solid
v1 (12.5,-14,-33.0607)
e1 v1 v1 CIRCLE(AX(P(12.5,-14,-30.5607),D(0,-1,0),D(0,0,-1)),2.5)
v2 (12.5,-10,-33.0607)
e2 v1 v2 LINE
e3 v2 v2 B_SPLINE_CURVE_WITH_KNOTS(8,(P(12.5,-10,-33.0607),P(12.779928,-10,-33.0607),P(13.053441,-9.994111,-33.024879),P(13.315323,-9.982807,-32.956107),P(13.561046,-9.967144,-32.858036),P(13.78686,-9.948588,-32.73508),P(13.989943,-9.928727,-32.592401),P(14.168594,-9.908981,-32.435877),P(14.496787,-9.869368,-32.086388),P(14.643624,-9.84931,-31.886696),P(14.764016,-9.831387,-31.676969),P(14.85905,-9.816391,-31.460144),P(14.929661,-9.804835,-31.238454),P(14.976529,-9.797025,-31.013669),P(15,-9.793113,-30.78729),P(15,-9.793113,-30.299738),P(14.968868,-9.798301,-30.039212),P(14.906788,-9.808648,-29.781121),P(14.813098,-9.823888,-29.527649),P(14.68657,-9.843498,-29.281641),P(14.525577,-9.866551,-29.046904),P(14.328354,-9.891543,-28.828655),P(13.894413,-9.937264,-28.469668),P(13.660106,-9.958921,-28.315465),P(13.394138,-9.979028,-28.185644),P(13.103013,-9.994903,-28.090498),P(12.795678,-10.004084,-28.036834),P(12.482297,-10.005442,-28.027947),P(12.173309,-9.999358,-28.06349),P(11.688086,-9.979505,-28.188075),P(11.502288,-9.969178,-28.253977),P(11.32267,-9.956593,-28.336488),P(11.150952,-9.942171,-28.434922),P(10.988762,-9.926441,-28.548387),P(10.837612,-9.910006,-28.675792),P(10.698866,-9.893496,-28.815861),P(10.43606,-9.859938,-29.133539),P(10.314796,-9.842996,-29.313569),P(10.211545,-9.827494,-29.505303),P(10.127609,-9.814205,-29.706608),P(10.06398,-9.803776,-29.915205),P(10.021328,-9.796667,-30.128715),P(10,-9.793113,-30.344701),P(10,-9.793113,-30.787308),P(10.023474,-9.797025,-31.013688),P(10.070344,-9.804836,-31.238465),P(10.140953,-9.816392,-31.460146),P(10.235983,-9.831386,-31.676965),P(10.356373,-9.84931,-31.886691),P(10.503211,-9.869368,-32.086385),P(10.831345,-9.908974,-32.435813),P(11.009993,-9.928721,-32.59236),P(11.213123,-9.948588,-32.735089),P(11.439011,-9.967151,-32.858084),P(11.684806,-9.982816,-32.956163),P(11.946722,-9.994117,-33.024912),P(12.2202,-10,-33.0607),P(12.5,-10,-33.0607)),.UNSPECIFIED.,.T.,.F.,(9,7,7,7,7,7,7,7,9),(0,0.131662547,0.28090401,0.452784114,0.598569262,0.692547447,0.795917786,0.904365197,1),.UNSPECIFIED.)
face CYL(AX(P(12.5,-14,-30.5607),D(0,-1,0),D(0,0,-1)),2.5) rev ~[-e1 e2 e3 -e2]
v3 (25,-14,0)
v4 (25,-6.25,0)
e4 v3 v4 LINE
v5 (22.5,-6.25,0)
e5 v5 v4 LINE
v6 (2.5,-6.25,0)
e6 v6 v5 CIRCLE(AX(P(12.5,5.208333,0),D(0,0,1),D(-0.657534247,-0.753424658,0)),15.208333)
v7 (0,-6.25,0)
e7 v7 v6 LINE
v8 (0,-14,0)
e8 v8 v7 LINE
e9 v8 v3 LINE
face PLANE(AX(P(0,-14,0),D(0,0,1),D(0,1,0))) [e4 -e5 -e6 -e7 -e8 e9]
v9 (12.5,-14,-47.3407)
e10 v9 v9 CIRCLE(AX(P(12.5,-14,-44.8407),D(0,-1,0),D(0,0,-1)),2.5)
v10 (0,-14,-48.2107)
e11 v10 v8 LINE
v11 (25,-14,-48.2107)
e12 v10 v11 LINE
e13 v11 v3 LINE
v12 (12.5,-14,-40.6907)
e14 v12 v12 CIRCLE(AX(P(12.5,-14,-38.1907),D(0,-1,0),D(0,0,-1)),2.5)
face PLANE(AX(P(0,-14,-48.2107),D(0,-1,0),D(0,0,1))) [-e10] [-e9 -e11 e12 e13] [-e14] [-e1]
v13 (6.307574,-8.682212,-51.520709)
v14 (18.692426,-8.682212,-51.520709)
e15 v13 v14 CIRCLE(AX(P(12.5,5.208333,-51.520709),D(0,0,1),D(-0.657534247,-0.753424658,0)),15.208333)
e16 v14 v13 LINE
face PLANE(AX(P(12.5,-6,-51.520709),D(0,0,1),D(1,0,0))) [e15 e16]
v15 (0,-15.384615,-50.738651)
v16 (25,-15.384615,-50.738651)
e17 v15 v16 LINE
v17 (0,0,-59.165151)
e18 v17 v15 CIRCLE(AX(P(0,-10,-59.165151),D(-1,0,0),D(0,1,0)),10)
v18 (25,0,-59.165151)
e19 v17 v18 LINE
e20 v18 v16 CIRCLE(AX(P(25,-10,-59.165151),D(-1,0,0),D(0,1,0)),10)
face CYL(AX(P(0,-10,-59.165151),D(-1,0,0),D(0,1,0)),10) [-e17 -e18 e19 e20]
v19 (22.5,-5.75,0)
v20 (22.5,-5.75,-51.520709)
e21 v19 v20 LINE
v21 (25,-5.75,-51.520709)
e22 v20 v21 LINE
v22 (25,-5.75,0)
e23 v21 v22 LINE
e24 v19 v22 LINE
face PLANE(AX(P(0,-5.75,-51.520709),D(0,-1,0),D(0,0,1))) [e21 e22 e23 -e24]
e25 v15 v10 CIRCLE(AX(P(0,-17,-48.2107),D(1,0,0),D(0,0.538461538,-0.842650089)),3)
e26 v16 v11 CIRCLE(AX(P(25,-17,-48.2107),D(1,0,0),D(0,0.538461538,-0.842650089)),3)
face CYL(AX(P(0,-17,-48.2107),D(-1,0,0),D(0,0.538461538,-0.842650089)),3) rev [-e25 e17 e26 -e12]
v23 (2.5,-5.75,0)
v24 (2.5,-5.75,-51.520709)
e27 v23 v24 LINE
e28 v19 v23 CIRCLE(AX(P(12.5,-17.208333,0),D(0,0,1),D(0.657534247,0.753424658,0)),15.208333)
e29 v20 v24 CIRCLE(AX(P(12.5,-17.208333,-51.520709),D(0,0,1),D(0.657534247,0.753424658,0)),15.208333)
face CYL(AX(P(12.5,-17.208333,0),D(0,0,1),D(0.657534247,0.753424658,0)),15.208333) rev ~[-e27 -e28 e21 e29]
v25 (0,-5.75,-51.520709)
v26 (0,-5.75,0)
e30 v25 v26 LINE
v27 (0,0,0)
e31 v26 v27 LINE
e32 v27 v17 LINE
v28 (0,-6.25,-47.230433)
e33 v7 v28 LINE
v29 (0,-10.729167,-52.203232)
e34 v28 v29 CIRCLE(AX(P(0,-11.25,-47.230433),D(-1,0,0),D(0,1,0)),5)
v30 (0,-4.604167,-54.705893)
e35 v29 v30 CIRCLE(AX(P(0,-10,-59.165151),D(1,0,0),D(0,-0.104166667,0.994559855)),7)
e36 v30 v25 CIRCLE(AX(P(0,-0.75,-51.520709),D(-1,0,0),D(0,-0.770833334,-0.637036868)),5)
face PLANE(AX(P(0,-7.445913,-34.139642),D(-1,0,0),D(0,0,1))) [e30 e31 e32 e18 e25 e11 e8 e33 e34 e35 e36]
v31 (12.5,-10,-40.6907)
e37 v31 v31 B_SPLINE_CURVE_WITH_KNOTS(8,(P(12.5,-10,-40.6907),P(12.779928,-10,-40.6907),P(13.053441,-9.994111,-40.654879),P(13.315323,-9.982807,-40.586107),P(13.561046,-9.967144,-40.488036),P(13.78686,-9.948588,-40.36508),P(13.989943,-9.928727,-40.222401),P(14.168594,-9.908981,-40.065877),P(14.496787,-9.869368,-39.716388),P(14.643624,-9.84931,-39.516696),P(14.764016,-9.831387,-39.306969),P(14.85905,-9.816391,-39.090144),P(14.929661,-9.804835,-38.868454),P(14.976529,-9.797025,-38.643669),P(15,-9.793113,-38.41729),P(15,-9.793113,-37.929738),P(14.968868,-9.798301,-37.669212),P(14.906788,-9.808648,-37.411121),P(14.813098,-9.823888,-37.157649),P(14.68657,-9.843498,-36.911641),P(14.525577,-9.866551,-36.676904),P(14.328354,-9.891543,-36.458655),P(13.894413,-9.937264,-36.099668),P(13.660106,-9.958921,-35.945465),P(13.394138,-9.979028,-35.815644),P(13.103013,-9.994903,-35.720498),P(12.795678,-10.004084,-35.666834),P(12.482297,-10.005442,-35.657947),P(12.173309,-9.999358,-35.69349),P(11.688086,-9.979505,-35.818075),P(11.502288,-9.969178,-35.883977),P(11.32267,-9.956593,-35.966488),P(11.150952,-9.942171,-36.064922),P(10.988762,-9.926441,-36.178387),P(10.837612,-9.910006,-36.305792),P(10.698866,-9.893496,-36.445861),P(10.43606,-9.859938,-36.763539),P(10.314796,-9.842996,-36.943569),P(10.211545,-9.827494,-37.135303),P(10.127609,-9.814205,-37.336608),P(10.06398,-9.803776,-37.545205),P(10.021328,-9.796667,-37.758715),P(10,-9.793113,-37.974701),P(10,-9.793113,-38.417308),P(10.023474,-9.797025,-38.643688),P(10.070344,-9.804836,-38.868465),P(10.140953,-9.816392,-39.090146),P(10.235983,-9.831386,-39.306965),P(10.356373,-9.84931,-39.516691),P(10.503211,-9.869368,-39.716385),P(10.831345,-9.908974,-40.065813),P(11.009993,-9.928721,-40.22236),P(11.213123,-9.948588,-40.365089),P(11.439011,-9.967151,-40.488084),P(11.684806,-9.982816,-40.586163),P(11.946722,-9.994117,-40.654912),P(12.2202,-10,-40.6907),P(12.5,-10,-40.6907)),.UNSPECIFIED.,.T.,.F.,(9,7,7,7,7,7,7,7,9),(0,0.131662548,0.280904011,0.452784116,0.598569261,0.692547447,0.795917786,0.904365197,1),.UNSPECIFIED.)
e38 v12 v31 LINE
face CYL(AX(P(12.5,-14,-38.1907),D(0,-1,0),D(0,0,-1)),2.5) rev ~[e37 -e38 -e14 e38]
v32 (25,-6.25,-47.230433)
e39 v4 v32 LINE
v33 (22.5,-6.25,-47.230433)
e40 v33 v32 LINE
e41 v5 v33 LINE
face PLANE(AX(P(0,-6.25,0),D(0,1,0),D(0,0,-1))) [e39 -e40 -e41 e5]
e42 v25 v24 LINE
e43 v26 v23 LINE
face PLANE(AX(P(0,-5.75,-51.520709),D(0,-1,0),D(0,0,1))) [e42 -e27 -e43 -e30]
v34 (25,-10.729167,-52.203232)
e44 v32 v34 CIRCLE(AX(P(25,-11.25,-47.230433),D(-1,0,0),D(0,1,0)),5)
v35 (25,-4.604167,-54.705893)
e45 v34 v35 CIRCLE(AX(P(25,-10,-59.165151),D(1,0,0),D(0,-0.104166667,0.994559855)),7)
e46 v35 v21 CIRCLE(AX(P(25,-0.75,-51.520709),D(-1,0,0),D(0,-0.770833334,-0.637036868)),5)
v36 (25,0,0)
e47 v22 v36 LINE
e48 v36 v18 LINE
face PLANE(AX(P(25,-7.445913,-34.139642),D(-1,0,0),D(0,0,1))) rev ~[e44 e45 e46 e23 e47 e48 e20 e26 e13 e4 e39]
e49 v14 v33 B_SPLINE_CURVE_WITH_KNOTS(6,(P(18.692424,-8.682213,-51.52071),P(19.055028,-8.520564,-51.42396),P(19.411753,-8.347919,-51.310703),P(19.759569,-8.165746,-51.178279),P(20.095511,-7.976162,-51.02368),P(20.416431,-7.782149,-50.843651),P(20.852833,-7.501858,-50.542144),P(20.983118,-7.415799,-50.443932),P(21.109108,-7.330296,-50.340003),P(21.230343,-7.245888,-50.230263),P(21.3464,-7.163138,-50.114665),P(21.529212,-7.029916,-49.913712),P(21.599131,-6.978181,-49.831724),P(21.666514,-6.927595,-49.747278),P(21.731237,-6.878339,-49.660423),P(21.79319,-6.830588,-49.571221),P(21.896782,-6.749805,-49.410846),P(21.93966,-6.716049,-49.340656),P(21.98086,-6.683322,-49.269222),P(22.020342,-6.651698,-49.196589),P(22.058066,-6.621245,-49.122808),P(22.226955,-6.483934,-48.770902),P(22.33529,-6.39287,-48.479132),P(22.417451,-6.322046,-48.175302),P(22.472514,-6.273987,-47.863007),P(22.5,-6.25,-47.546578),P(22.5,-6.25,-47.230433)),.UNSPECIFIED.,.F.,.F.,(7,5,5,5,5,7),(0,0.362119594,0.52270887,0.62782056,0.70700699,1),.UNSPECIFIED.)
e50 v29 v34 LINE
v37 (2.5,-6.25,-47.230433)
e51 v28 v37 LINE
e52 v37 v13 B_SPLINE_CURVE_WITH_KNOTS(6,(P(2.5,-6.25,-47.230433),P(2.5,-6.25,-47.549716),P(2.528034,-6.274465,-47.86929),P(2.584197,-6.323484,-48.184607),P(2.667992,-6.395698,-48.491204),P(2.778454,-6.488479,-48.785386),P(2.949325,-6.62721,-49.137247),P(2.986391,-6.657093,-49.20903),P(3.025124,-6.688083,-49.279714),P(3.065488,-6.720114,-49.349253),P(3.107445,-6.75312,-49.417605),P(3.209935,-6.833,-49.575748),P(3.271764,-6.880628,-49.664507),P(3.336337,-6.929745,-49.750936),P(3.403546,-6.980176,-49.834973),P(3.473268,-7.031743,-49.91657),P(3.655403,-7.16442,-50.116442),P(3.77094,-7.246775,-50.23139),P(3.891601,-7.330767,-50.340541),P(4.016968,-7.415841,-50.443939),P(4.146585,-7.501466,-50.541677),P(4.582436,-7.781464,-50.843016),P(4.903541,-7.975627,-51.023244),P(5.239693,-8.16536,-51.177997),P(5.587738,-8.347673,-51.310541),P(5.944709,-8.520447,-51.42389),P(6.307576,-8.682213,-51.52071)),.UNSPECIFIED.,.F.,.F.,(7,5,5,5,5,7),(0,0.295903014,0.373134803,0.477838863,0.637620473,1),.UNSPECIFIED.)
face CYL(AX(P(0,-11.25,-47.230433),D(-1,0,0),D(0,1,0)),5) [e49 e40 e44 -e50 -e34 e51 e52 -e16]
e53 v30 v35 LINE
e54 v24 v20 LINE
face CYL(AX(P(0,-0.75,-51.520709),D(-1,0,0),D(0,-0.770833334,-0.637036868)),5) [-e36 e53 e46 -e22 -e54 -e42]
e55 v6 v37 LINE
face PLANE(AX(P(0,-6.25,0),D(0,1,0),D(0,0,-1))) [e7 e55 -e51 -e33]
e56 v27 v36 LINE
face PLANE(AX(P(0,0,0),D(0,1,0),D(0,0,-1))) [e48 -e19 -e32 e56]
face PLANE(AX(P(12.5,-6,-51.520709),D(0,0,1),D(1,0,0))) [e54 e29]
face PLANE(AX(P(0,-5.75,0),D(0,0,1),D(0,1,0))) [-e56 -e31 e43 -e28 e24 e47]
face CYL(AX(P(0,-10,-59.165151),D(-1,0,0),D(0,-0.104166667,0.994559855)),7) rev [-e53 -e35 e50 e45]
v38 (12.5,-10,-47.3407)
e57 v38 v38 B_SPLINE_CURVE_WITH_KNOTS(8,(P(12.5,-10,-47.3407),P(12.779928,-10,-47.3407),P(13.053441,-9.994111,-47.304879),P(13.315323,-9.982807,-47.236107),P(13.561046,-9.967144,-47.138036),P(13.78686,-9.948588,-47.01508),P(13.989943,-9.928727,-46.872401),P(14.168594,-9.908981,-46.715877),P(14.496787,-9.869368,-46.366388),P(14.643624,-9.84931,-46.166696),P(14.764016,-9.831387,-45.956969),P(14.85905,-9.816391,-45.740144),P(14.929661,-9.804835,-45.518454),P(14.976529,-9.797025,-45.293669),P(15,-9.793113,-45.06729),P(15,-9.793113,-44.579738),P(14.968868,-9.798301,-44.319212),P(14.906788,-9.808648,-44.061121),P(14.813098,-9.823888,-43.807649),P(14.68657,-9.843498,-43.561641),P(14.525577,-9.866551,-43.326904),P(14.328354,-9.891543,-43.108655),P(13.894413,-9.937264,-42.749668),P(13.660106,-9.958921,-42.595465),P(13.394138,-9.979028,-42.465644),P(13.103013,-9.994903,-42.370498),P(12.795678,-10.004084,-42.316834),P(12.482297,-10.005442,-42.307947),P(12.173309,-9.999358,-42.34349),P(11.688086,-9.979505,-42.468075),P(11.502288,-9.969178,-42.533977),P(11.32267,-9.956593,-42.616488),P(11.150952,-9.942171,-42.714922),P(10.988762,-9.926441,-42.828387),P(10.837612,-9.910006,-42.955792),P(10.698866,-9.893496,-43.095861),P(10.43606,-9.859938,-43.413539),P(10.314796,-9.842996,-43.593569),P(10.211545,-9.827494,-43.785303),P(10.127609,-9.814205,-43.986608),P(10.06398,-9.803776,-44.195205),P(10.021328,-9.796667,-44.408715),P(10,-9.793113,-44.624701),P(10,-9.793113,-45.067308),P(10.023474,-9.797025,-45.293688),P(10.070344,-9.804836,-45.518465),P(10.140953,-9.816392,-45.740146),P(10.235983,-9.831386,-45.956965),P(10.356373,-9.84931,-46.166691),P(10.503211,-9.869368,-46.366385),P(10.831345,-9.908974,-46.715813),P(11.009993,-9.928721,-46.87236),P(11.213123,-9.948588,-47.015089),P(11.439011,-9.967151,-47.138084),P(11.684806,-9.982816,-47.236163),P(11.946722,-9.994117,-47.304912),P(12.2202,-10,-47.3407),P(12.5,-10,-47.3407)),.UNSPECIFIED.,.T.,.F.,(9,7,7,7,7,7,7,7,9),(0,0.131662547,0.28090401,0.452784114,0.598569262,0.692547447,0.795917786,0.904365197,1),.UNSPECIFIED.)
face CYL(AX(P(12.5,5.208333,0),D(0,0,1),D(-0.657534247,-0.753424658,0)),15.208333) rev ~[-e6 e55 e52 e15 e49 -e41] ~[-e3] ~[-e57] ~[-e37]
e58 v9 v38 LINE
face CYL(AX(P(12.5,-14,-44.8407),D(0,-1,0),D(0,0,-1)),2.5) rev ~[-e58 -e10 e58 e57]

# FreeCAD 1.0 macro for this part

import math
import FreeCAD as App
import Part
import Sketcher

V = App.Vector

doc = App.newDocument("Part")
body = doc.addObject("PartDesign::Body", "Body")

# Sketch on YZ plane
sketch1 = body.newObject("Sketcher::SketchObject", "Sketch")
sketch1.AttachmentSupport = (doc.getObject("YZ_Plane"), [""])
sketch1.MapMode = "FlatFace"
sketch1.addGeometry([
    Part.LineSegment(V(0, -59.165151, 0), V(0, 0, 0)),  # 0
    Part.LineSegment(V(0, 0, 0), V(-5.75, 0, 0)),  # 1
    Part.LineSegment(V(-5.75, 0, 0), V(-5.75, -51.520709, 0)),  # 2
    Part.ArcOfCircle(Part.Circle(V(-0.75, -51.520709, 0), V(0, 0, 1), 5), math.radians(-180), math.radians(-140.428781)),  # 3
    Part.ArcOfCircle(Part.Circle(V(-10, -59.165151, 0), V(0, 0, 1), 7), math.radians(95.979157), math.radians(399.571219)),  # 4
    Part.ArcOfCircle(Part.Circle(V(-11.25, -47.230433, 0), V(0, 0, 1), 5), math.radians(-84.020843), math.radians(0)),  # 5
    Part.LineSegment(V(-6.25, -47.230433, 0), V(-6.25, 0, 0)),  # 6
    Part.LineSegment(V(-6.25, 0, 0), V(-14, 0, 0)),  # 7
    Part.LineSegment(V(-14, 0, 0), V(-14, -48.2107, 0)),  # 8
    Part.ArcOfCircle(Part.Circle(V(-17, -48.2107, 0), V(0, 0, 1), 3), math.radians(-57.42103), math.radians(0)),  # 9
    Part.ArcOfCircle(Part.Circle(V(-10, -59.165151, 0), V(0, 0, 1), 10), math.radians(122.57897), math.radians(360)),  # 10
], False)
sketch1.addConstraint([
    Sketcher.Constraint("Coincident", 0, 2, 1, 1),
    Sketcher.Constraint("Coincident", 1, 2, 2, 1),
    Sketcher.Constraint("Tangent", 2, 2, 3, 1),
    Sketcher.Constraint("Tangent", 3, 2, 4, 2),
    Sketcher.Constraint("Tangent", 4, 1, 5, 1),
    Sketcher.Constraint("Tangent", 5, 2, 6, 1),
    Sketcher.Constraint("Coincident", 6, 2, 7, 1),
    Sketcher.Constraint("Coincident", 7, 2, 8, 1),
    Sketcher.Constraint("Tangent", 8, 2, 9, 2),
    Sketcher.Constraint("Tangent", 9, 1, 10, 1),
    Sketcher.Constraint("Tangent", 10, 2, 0, 1),
    Sketcher.Constraint("Vertical", 0),
    Sketcher.Constraint("Horizontal", 1),
    Sketcher.Constraint("Vertical", 2),
    Sketcher.Constraint("Vertical", 6),
    Sketcher.Constraint("Horizontal", 7),
    Sketcher.Constraint("Vertical", 8),
    Sketcher.Constraint("Coincident", 0, 2, -1, 1),
    Sketcher.Constraint("Coincident", 10, 3, 4, 3),
    Sketcher.Constraint("Equal", 3, 5),
    Sketcher.Constraint("PointOnObject", 6, 2, -1),
    Sketcher.Constraint("Radius", 3, 5.0),
    Sketcher.Constraint("Radius", 4, 7.0),
    Sketcher.Constraint("Radius", 9, 3.0),
    Sketcher.Constraint("Radius", 10, 10.0),
    Sketcher.Constraint("DistanceX", 9, 3, -1, 1, 17.0),
    Sketcher.Constraint("DistanceX", 1, 2, 1, 1, 5.75),
    Sketcher.Constraint("DistanceX", 7, 2, 7, 1, 7.75),
    Sketcher.Constraint("DistanceY", 8, 2, 8, 1, 48.2107),
])
pad1 = body.newObject("PartDesign::Pad", "Pad")
pad1.Profile = sketch1
pad1.Length = 25

# Sketch on XZ plane
sketch2 = body.newObject("Sketcher::SketchObject", "Sketch001")
sketch2.AttachmentSupport = (doc.getObject("XZ_Plane"), [""])
sketch2.MapMode = "FlatFace"
sketch2.AttachmentOffset = App.Placement(V(0, 0, 14), App.Rotation())
sketch2.addGeometry(Part.Circle(V(12.5, -30.5607, 0), V(0, 0, 1), 2.5), False)
sketch2.addConstraint([
    Sketcher.Constraint("Diameter", 0, 5.0),
    Sketcher.Constraint("DistanceX", -1, 1, 0, 3, 12.5),
    Sketcher.Constraint("DistanceY", 0, 3, -1, 1, 30.5607),
])
pocket1 = body.newObject("PartDesign::Pocket", "Pocket")
pocket1.Profile = sketch2
pocket1.Type = "UpToFirst"

# Sketch on XZ plane
sketch3 = body.newObject("Sketcher::SketchObject", "Sketch002")
sketch3.AttachmentSupport = (doc.getObject("XZ_Plane"), [""])
sketch3.MapMode = "FlatFace"
sketch3.AttachmentOffset = App.Placement(V(0, 0, 14), App.Rotation())
sketch3.addGeometry(Part.Circle(V(12.5, -38.1907, 0), V(0, 0, 1), 2.5), False)
sketch3.addConstraint([
    Sketcher.Constraint("Diameter", 0, 5.0),
    Sketcher.Constraint("DistanceX", -1, 1, 0, 3, 12.5),
    Sketcher.Constraint("DistanceY", 0, 3, -1, 1, 38.1907),
])
pocket2 = body.newObject("PartDesign::Pocket", "Pocket001")
pocket2.Profile = sketch3
pocket2.Type = "UpToFirst"

# Sketch on XZ plane
sketch4 = body.newObject("Sketcher::SketchObject", "Sketch003")
sketch4.AttachmentSupport = (doc.getObject("XZ_Plane"), [""])
sketch4.MapMode = "FlatFace"
sketch4.AttachmentOffset = App.Placement(V(0, 0, 14), App.Rotation())
sketch4.addGeometry(Part.Circle(V(12.5, -44.8407, 0), V(0, 0, 1), 2.5), False)
sketch4.addConstraint([
    Sketcher.Constraint("Diameter", 0, 5.0),
    Sketcher.Constraint("DistanceX", -1, 1, 0, 3, 12.5),
    Sketcher.Constraint("DistanceY", 0, 3, -1, 1, 44.8407),
])
pocket3 = body.newObject("PartDesign::Pocket", "Pocket002")
pocket3.Profile = sketch4
pocket3.Type = "UpToFirst"

# Sketch on XY plane
sketch5 = body.newObject("Sketcher::SketchObject", "Sketch004")
sketch5.AttachmentSupport = (doc.getObject("XY_Plane"), [""])
sketch5.MapMode = "FlatFace"
sketch5.addGeometry([
    Part.LineSegment(V(22.5, -6.25, 0), V(22.5, -5.75, 0)),
    Part.ArcOfCircle(Part.Circle(V(12.5, -17.208333, 0), V(0, 0, 1), 15.208333), math.radians(48.88791), math.radians(131.11209)),
    Part.LineSegment(V(2.5, -5.75, 0), V(2.5, -6.25, 0)),
    Part.ArcOfCircle(Part.Circle(V(12.5, 5.208333, 0), V(0, 0, 1), 15.208333), math.radians(-131.11209), math.radians(-48.88791)),
], False)
sketch5.addConstraint([
    Sketcher.Constraint("Coincident", 0, 2, 1, 1),
    Sketcher.Constraint("Coincident", 1, 2, 2, 1),
    Sketcher.Constraint("Coincident", 2, 2, 3, 1),
    Sketcher.Constraint("Coincident", 3, 2, 0, 1),
    Sketcher.Constraint("Vertical", 0),
    Sketcher.Constraint("Vertical", 2),
    Sketcher.Constraint("Equal", 1, 3),
    Sketcher.Constraint("Horizontal", 0, 2, 1, 2),
    Sketcher.Constraint("Horizontal", 2, 2, 3, 2),
    Sketcher.Constraint("DistanceY", 0, 1, 0, 2, 0.5),
    Sketcher.Constraint("DistanceX", 3, 3, 0, 2, 10.0),
    Sketcher.Constraint("DistanceX", -1, 1, 1, 3, 12.5),
    Sketcher.Constraint("DistanceY", 0, 2, -1, 1, 5.75),
    Sketcher.Constraint("Radius", 1, 15.208333),
])
pocket4 = body.newObject("PartDesign::Pocket", "Pocket003")
pocket4.Profile = sketch5
pocket4.Length = 51.520709

doc.recompute()
